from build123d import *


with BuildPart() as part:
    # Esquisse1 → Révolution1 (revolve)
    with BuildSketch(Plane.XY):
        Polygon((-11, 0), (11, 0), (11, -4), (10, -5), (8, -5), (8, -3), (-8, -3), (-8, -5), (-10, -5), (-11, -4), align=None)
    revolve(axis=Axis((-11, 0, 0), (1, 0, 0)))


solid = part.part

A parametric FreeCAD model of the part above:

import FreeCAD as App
import Part
import Sketcher
from FreeCAD import Vector

doc = App.newDocument("Part")
body = doc.addObject("PartDesign::Body", "Body")

# Sketch on XY plane
sketch1 = body.newObject("Sketcher::SketchObject", "Sketch")
sketch1.AttachmentSupport = (doc.getObject("XY_Plane"), [""])
sketch1.MapMode = "FlatFace"
sketch1.addGeometry(Part.LineSegment(Vector(11, 0, 0), Vector(-11, 0, 0)), False)
sketch1.addGeometry(Part.LineSegment(Vector(-11, 0, 0), Vector(-11, -4, 0)), False)
sketch1.addGeometry(Part.LineSegment(Vector(-11, -4, 0), Vector(-10, -5, 0)), False)
sketch1.addGeometry(Part.LineSegment(Vector(-10, -5, 0), Vector(-8, -5, 0)), False)
sketch1.addGeometry(Part.LineSegment(Vector(-8, -5, 0), Vector(-8, -3, 0)), False)
sketch1.addGeometry(Part.LineSegment(Vector(-8, -3, 0), Vector(8, -3, 0)), False)
sketch1.addGeometry(Part.LineSegment(Vector(8, -3, 0), Vector(8, -5, 0)), False)
sketch1.addGeometry(Part.LineSegment(Vector(8, -5, 0), Vector(10, -5, 0)), False)
sketch1.addGeometry(Part.LineSegment(Vector(10, -5, 0), Vector(11, -4, 0)), False)
sketch1.addGeometry(Part.LineSegment(Vector(11, -4, 0), Vector(11, 0, 0)), False)
sketch1.addConstraint(Sketcher.Constraint("Coincident", 0, 2, 1, 1))
sketch1.addConstraint(Sketcher.Constraint("Coincident", 1, 2, 2, 1))
sketch1.addConstraint(Sketcher.Constraint("Coincident", 2, 2, 3, 1))
sketch1.addConstraint(Sketcher.Constraint("Coincident", 3, 2, 4, 1))
sketch1.addConstraint(Sketcher.Constraint("Coincident", 4, 2, 5, 1))
sketch1.addConstraint(Sketcher.Constraint("Coincident", 5, 2, 6, 1))
sketch1.addConstraint(Sketcher.Constraint("Coincident", 6, 2, 7, 1))
sketch1.addConstraint(Sketcher.Constraint("Coincident", 7, 2, 8, 1))
sketch1.addConstraint(Sketcher.Constraint("Coincident", 8, 2, 9, 1))
sketch1.addConstraint(Sketcher.Constraint("Coincident", 9, 2, 0, 1))
sketch1.addConstraint(Sketcher.Constraint("Horizontal", 0))
sketch1.addConstraint(Sketcher.Constraint("Vertical", 1))
sketch1.addConstraint(Sketcher.Constraint("Horizontal", 3))
sketch1.addConstraint(Sketcher.Constraint("Vertical", 4))
sketch1.addConstraint(Sketcher.Constraint("Horizontal", 5))
sketch1.addConstraint(Sketcher.Constraint("Vertical", 6))
sketch1.addConstraint(Sketcher.Constraint("Horizontal", 7))
sketch1.addConstraint(Sketcher.Constraint("Vertical", 9))
sketch1.addConstraint(Sketcher.Constraint("Symmetric", 0, 2, 9, 2, -1, 1))
sketch1.addConstraint(Sketcher.Constraint("Symmetric", 3, 2, 6, 2, -2))
sketch1.addConstraint(Sketcher.Constraint("Perpendicular", 2, 8))
sketch1.addConstraint(Sketcher.Constraint("Horizontal", 1, 2, 8, 2))
sketch1.addConstraint(Sketcher.Constraint("Equal", 3, 7))
sketch1.addConstraint(Sketcher.Constraint("Equal", 7, 4))
sketch1.addConstraint(Sketcher.Constraint("DistanceX", 0, 2, 0, 1, 22.0))
sketch1.addConstraint(Sketcher.Constraint("DistanceX", 3, 1, 3, 2, 2.0))
sketch1.addConstraint(Sketcher.Constraint("DistanceX", 5, 1, 5, 2, 16.0))
sketch1.addConstraint(Sketcher.Constraint("DistanceY", 1, 2, 1, 1, 4.0))
revolution = body.newObject("PartDesign::Revolution", "Revolution")
revolution.Profile = sketch1
revolution.ReferenceAxis = (sketch1, ["H_Axis"])
revolution.Angle = 360

doc.recompute()
